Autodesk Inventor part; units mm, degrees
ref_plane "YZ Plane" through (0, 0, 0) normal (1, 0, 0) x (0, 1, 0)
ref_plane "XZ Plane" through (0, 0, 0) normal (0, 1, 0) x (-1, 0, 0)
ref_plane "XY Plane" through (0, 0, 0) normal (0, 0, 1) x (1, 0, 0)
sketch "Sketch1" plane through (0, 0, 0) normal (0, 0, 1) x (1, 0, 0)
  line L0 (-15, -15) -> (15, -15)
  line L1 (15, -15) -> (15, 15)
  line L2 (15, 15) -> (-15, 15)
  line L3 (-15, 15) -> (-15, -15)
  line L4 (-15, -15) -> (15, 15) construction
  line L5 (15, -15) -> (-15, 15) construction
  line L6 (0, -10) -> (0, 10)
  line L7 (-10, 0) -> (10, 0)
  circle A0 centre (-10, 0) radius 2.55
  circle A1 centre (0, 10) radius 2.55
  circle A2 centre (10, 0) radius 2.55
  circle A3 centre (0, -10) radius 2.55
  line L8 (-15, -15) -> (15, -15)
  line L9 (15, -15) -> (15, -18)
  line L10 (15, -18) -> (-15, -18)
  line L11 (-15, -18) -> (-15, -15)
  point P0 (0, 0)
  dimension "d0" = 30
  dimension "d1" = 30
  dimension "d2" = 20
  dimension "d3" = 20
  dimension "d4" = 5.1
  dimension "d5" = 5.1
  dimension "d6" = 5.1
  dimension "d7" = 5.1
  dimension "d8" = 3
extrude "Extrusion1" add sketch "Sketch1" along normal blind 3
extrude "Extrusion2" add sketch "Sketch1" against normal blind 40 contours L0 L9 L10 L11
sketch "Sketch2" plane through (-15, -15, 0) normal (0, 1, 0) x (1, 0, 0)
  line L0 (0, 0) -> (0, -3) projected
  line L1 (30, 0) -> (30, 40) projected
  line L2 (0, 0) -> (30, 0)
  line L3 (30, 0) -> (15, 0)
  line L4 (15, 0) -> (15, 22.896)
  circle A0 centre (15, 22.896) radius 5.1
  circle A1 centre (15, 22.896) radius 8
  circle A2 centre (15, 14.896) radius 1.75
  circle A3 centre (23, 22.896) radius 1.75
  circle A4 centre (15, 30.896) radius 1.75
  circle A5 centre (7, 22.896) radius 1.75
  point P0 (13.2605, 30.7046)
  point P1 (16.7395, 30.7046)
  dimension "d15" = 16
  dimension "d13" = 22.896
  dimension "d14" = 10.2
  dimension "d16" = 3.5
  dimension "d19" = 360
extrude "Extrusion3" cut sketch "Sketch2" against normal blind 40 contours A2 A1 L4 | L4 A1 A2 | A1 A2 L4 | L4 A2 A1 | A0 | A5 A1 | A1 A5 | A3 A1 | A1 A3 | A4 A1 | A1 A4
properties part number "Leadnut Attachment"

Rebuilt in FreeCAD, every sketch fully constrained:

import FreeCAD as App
import Part
import Sketcher

V = App.Vector

doc = App.newDocument("Part")
body = doc.addObject("PartDesign::Body", "Body")

# Sketch on XY plane
sketch1 = body.newObject("Sketcher::SketchObject", "Sketch")
sketch1.AttachmentSupport = (doc.getObject("XY_Plane"), [""])
sketch1.MapMode = "FlatFace"
sketch1.addGeometry(Part.LineSegment(V(-15, 15, 0), V(-15, -18, 0)), False)
sketch1.addGeometry(Part.LineSegment(V(-15, -18, 0), V(15, -18, 0)), False)
sketch1.addGeometry(Part.LineSegment(V(15, -18, 0), V(15, 15, 0)), False)
sketch1.addGeometry(Part.LineSegment(V(15, 15, 0), V(-15, 15, 0)), False)
sketch1.addGeometry(Part.Circle(V(0, -10, 0), V(0, 0, 1), 2.5), False)
sketch1.addGeometry(Part.Circle(V(-10, 0, 0), V(0, 0, 1), 2.5), False)
sketch1.addGeometry(Part.Circle(V(10, 0, 0), V(0, 0, 1), 2.5), False)
sketch1.addGeometry(Part.Circle(V(0, 10, 0), V(0, 0, 1), 2.5), False)
sketch1.addConstraint(Sketcher.Constraint("Coincident", 0, 2, 1, 1))
sketch1.addConstraint(Sketcher.Constraint("Coincident", 1, 2, 2, 1))
sketch1.addConstraint(Sketcher.Constraint("Coincident", 2, 2, 3, 1))
sketch1.addConstraint(Sketcher.Constraint("Coincident", 3, 2, 0, 1))
sketch1.addConstraint(Sketcher.Constraint("Vertical", 0))
sketch1.addConstraint(Sketcher.Constraint("Horizontal", 1))
sketch1.addConstraint(Sketcher.Constraint("Vertical", 2))
sketch1.addConstraint(Sketcher.Constraint("Horizontal", 3))
sketch1.addConstraint(Sketcher.Constraint("Equal", 4, 5))
sketch1.addConstraint(Sketcher.Constraint("Equal", 5, 6))
sketch1.addConstraint(Sketcher.Constraint("Equal", 6, 7))
sketch1.addConstraint(Sketcher.Constraint("Symmetric", 5, 3, 6, 3, -1, 1))
sketch1.addConstraint(Sketcher.Constraint("Symmetric", 4, 3, 7, 3, -1, 1))
sketch1.addConstraint(Sketcher.Constraint("PointOnObject", 4, 3, -2))
sketch1.addConstraint(Sketcher.Constraint("PointOnObject", 5, 3, -1))
sketch1.addConstraint(Sketcher.Constraint("Diameter", 4, 5.1))
sketch1.addConstraint(Sketcher.Constraint("DistanceX", 1, 1, 1, 2, 30.0))
sketch1.addConstraint(Sketcher.Constraint("DistanceX", 5, 3, 6, 3, 20.0))
sketch1.addConstraint(Sketcher.Constraint("DistanceY", 4, 3, 7, 3, 20.0))
sketch1.addConstraint(Sketcher.Constraint("DistanceY", 0, 2, 0, 1, 33.0))
sketch1.addConstraint(Sketcher.Constraint("DistanceX", 0, 2, -1, 1, 15.0))
sketch1.addConstraint(Sketcher.Constraint("DistanceY", 0, 2, -1, 1, 18.0))
pad1 = body.newObject("PartDesign::Pad", "Pad")
pad1.Profile = sketch1
pad1.Length = 3

# Sketch on XY plane
sketch2 = body.newObject("Sketcher::SketchObject", "Sketch001")
sketch2.AttachmentSupport = (doc.getObject("XY_Plane"), [""])
sketch2.MapMode = "FlatFace"
sketch2.addGeometry(Part.LineSegment(V(15, -15, 0), V(-15, -15, 0)), False)
sketch2.addGeometry(Part.LineSegment(V(-15, -15, 0), V(-15, -18, 0)), False)
sketch2.addGeometry(Part.LineSegment(V(-15, -18, 0), V(15, -18, 0)), False)
sketch2.addGeometry(Part.LineSegment(V(15, -18, 0), V(15, -15, 0)), False)
sketch2.addConstraint(Sketcher.Constraint("Coincident", 0, 2, 1, 1))
sketch2.addConstraint(Sketcher.Constraint("Coincident", 1, 2, 2, 1))
sketch2.addConstraint(Sketcher.Constraint("Coincident", 2, 2, 3, 1))
sketch2.addConstraint(Sketcher.Constraint("Coincident", 3, 2, 0, 1))
sketch2.addConstraint(Sketcher.Constraint("Horizontal", 0))
sketch2.addConstraint(Sketcher.Constraint("Vertical", 1))
sketch2.addConstraint(Sketcher.Constraint("Horizontal", 2))
sketch2.addConstraint(Sketcher.Constraint("Vertical", 3))
sketch2.addConstraint(Sketcher.Constraint("DistanceX", 0, 2, 0, 1, 30.0))
sketch2.addConstraint(Sketcher.Constraint("DistanceY", 1, 2, 1, 1, 3.0))
sketch2.addConstraint(Sketcher.Constraint("DistanceX", 0, 2, -1, 1, 15.0))
sketch2.addConstraint(Sketcher.Constraint("DistanceY", 0, 2, -1, 1, 15.0))
pad2 = body.newObject("PartDesign::Pad", "Pad001")
pad2.Profile = sketch2
pad2.Length = 40
pad2.Reversed = True

# Sketch on XZ plane
sketch3 = body.newObject("Sketcher::SketchObject", "Sketch002")
sketch3.AttachmentSupport = (doc.getObject("XZ_Plane"), [""])
sketch3.MapMode = "FlatFace"
sketch3.AttachmentOffset = App.Placement(V(0, 0, 15), App.Rotation())
sketch3.addGeometry(Part.Circle(V(0, -14.9, 0), V(0, 0, 1), 1.8), False)
sketch3.addGeometry(Part.Circle(V(0, -22.9, 0), V(0, 0, 1), 5.1), False)
sketch3.addGeometry(Part.Circle(V(-8, -22.9, 0), V(0, 0, 1), 1.8), False)
sketch3.addGeometry(Part.Circle(V(8, -22.9, 0), V(0, 0, 1), 1.8), False)
sketch3.addGeometry(Part.Circle(V(0, -30.9, 0), V(0, 0, 1), 1.8), False)
sketch3.addConstraint(Sketcher.Constraint("Equal", 0, 2))
sketch3.addConstraint(Sketcher.Constraint("Equal", 2, 3))
sketch3.addConstraint(Sketcher.Constraint("Equal", 3, 4))
sketch3.addConstraint(Sketcher.Constraint("Symmetric", 2, 3, 3, 3, -2))
sketch3.addConstraint(Sketcher.Constraint("PointOnObject", 0, 3, -2))
sketch3.addConstraint(Sketcher.Constraint("PointOnObject", 1, 3, -2))
sketch3.addConstraint(Sketcher.Constraint("PointOnObject", 4, 3, -2))
sketch3.addConstraint(Sketcher.Constraint("Horizontal", 1, 3, 2, 3))
sketch3.addConstraint(Sketcher.Constraint("Diameter", 0, 3.5))
sketch3.addConstraint(Sketcher.Constraint("Diameter", 1, 10.2))
sketch3.addConstraint(Sketcher.Constraint("DistanceX", 2, 3, 3, 3, 16.0))
sketch3.addConstraint(Sketcher.Constraint("DistanceY", 4, 3, 0, 3, 16.0))
sketch3.addConstraint(Sketcher.Constraint("DistanceY", 1, 3, -1, 1, 22.896))
sketch3.addConstraint(Sketcher.Constraint("DistanceY", 1, 3, 0, 3, 8.0))
pocket1 = body.newObject("PartDesign::Pocket", "Pocket")
pocket1.Profile = sketch3
pocket1.Length = 40
pocket1.Reversed = True

doc.recompute()
